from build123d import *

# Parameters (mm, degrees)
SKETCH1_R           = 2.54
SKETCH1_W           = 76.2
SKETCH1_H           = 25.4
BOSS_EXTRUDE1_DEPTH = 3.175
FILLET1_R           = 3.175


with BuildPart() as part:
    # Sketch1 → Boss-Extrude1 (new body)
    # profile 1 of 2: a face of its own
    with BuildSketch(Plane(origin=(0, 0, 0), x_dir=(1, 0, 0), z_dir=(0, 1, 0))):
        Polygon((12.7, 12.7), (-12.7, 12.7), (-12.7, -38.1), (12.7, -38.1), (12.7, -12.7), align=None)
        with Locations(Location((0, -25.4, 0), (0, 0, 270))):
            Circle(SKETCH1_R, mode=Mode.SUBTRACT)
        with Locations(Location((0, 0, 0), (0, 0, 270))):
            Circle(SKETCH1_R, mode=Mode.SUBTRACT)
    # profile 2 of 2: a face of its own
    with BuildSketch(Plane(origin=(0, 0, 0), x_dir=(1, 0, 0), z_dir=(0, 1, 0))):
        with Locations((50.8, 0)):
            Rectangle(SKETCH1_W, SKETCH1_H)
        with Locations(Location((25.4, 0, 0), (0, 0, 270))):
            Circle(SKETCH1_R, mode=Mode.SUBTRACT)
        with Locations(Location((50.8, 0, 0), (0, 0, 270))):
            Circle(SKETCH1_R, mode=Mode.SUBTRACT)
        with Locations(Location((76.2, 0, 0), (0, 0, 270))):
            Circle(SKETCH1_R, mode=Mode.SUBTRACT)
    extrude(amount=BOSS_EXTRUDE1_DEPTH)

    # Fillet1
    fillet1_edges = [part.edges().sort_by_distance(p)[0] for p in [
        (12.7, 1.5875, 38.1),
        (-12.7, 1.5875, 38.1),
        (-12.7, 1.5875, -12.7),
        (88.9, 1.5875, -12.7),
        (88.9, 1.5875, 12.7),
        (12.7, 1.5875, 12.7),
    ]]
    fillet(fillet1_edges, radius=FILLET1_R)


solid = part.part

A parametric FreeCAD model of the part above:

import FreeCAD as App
import Part
import Sketcher

V = App.Vector
Q = App.Units.Quantity


def edges_at(feature, points):
    """Names of the edges that pass closest to the given points."""
    edges = feature.Shape.Edges
    near = lambda p: min(range(len(edges)), key=lambda i: edges[i].distToShape(Part.Vertex(*p))[0])
    return sorted({f"Edge{near(p) + 1}" for p in points})


def add_polygon(sketch, points):
    """Adds a closed chain of lines whose ends are joined by coincident constraints."""
    first, n = sketch.GeometryCount, len(points)
    for a, b in zip(points, points[1:] + points[:1]):
        sketch.addGeometry(Part.LineSegment(App.Vector(*a, 0), App.Vector(*b, 0)), False)
    for i in range(n):
        sketch.addConstraint(Sketcher.Constraint("Coincident", first + i, 2, first + (i + 1) % n, 1))

doc = App.newDocument("Part")
params = doc.addObject("Spreadsheet::Sheet", "Params")
for row, (alias, value) in enumerate([
    ("sketch1_diameter", "0.2 in"),
    ("sketch1_width", "1 in"),
    ("sketch1_width2", "3 in"),
    ("pad1_length", "0.125 in"),
    ("fillet_radius", "0.125 in"),
], start=1):
    params.set(f"A{row}", alias)
    params.set(f"B{row}", "=" + value)
    params.setAlias(f"B{row}", alias)

body = doc.addObject("PartDesign::Body", "Body")

# Sketch on XZ plane
sketch1 = body.newObject("Sketcher::SketchObject", "Sketch")
sketch1.AttachmentSupport = (doc.getObject("XZ_Plane"), [""])
sketch1.MapMode = "FlatFace"
add_polygon(sketch1, [(-12.7, -12.7), (-12.7, 38.1), (12.7, 38.1), (12.7, 12.7), (88.9, 12.7), (88.9, -12.7)])  # lines 0-5
sketch1.addGeometry(Part.Circle(V(0, 25.4, 0), V(0, 0, 1), 2.54), False)  # 6
sketch1.addGeometry(Part.Circle(V(0, 0, 0), V(0, 0, 1), 2.54), False)  # 7
sketch1.addGeometry(Part.Circle(V(76.2, 0, 0), V(0, 0, 1), 2.54), False)  # 8
sketch1.addGeometry(Part.Circle(V(25.4, 0, 0), V(0, 0, 1), 2.54), False)  # 9
sketch1.addGeometry(Part.Circle(V(50.8, 0, 0), V(0, 0, 1), 2.54), False)  # 10
sketch1.addConstraint([
    Sketcher.Constraint("Vertical", 0),
    Sketcher.Constraint("Horizontal", 1),
    Sketcher.Constraint("Vertical", 2),
    Sketcher.Constraint("Horizontal", 3),
    Sketcher.Constraint("Vertical", 4),
    Sketcher.Constraint("Horizontal", 5),
    Sketcher.Constraint("Coincident", 7, 3, -1, 1),
    Sketcher.Constraint("Equal", 6, 7),
    Sketcher.Constraint("Equal", 7, 8),
    Sketcher.Constraint("Equal", 8, 9),
    Sketcher.Constraint("Equal", 9, 10),
    Sketcher.Constraint("Symmetric", 2, 2, 5, 2, -1, 1),
    Sketcher.Constraint("PointOnObject", 6, 3, -2),
    Sketcher.Constraint("PointOnObject", 8, 3, -1),
    Sketcher.Constraint("PointOnObject", 9, 3, -1),
    Sketcher.Constraint("PointOnObject", 10, 3, -1),
    Sketcher.Constraint("Equal", 1, 2),
    Sketcher.Constraint("Equal", 2, 4),
    Sketcher.Constraint("Diameter", 6, Q("0.2 in")),
    Sketcher.Constraint("DistanceX", 1, 1, 1, 2, Q("1 in")),
    Sketcher.Constraint("DistanceX", 3, 1, 3, 2, Q("3 in")),
    Sketcher.Constraint("DistanceY", -1, 1, 6, 3, Q("1 in")),
    Sketcher.Constraint("DistanceX", -1, 1, 8, 3, Q("3 in")),
    Sketcher.Constraint("DistanceX", -1, 1, 9, 3, Q("1 in")),
    Sketcher.Constraint("DistanceX", -1, 1, 10, 3, Q("2 in")),
])
sketch1.setExpression("Constraints[24]", "Params.sketch1_diameter")
sketch1.setExpression("Constraints[25]", "Params.sketch1_width")
sketch1.setExpression("Constraints[26]", "Params.sketch1_width2")
pad1 = body.newObject("PartDesign::Pad", "Pad")
pad1.Profile = sketch1
pad1.setExpression("Length", "Params.pad1_length")
pad1.Reversed = True
doc.recompute()

fillet = body.newObject("PartDesign::Fillet", "Fillet")
fillet.Base = (pad1, edges_at(pad1, [
    (12.7, 1.587, 38.1),
    (-12.7, 1.587, 38.1),
    (-12.7, 1.587, -12.7),
    (88.9, 1.587, -12.7),
    (88.9, 1.587, 12.7),
    (12.7, 1.587, 12.7),
]))
fillet.setExpression("Radius", "Params.fillet_radius")

doc.recompute()
